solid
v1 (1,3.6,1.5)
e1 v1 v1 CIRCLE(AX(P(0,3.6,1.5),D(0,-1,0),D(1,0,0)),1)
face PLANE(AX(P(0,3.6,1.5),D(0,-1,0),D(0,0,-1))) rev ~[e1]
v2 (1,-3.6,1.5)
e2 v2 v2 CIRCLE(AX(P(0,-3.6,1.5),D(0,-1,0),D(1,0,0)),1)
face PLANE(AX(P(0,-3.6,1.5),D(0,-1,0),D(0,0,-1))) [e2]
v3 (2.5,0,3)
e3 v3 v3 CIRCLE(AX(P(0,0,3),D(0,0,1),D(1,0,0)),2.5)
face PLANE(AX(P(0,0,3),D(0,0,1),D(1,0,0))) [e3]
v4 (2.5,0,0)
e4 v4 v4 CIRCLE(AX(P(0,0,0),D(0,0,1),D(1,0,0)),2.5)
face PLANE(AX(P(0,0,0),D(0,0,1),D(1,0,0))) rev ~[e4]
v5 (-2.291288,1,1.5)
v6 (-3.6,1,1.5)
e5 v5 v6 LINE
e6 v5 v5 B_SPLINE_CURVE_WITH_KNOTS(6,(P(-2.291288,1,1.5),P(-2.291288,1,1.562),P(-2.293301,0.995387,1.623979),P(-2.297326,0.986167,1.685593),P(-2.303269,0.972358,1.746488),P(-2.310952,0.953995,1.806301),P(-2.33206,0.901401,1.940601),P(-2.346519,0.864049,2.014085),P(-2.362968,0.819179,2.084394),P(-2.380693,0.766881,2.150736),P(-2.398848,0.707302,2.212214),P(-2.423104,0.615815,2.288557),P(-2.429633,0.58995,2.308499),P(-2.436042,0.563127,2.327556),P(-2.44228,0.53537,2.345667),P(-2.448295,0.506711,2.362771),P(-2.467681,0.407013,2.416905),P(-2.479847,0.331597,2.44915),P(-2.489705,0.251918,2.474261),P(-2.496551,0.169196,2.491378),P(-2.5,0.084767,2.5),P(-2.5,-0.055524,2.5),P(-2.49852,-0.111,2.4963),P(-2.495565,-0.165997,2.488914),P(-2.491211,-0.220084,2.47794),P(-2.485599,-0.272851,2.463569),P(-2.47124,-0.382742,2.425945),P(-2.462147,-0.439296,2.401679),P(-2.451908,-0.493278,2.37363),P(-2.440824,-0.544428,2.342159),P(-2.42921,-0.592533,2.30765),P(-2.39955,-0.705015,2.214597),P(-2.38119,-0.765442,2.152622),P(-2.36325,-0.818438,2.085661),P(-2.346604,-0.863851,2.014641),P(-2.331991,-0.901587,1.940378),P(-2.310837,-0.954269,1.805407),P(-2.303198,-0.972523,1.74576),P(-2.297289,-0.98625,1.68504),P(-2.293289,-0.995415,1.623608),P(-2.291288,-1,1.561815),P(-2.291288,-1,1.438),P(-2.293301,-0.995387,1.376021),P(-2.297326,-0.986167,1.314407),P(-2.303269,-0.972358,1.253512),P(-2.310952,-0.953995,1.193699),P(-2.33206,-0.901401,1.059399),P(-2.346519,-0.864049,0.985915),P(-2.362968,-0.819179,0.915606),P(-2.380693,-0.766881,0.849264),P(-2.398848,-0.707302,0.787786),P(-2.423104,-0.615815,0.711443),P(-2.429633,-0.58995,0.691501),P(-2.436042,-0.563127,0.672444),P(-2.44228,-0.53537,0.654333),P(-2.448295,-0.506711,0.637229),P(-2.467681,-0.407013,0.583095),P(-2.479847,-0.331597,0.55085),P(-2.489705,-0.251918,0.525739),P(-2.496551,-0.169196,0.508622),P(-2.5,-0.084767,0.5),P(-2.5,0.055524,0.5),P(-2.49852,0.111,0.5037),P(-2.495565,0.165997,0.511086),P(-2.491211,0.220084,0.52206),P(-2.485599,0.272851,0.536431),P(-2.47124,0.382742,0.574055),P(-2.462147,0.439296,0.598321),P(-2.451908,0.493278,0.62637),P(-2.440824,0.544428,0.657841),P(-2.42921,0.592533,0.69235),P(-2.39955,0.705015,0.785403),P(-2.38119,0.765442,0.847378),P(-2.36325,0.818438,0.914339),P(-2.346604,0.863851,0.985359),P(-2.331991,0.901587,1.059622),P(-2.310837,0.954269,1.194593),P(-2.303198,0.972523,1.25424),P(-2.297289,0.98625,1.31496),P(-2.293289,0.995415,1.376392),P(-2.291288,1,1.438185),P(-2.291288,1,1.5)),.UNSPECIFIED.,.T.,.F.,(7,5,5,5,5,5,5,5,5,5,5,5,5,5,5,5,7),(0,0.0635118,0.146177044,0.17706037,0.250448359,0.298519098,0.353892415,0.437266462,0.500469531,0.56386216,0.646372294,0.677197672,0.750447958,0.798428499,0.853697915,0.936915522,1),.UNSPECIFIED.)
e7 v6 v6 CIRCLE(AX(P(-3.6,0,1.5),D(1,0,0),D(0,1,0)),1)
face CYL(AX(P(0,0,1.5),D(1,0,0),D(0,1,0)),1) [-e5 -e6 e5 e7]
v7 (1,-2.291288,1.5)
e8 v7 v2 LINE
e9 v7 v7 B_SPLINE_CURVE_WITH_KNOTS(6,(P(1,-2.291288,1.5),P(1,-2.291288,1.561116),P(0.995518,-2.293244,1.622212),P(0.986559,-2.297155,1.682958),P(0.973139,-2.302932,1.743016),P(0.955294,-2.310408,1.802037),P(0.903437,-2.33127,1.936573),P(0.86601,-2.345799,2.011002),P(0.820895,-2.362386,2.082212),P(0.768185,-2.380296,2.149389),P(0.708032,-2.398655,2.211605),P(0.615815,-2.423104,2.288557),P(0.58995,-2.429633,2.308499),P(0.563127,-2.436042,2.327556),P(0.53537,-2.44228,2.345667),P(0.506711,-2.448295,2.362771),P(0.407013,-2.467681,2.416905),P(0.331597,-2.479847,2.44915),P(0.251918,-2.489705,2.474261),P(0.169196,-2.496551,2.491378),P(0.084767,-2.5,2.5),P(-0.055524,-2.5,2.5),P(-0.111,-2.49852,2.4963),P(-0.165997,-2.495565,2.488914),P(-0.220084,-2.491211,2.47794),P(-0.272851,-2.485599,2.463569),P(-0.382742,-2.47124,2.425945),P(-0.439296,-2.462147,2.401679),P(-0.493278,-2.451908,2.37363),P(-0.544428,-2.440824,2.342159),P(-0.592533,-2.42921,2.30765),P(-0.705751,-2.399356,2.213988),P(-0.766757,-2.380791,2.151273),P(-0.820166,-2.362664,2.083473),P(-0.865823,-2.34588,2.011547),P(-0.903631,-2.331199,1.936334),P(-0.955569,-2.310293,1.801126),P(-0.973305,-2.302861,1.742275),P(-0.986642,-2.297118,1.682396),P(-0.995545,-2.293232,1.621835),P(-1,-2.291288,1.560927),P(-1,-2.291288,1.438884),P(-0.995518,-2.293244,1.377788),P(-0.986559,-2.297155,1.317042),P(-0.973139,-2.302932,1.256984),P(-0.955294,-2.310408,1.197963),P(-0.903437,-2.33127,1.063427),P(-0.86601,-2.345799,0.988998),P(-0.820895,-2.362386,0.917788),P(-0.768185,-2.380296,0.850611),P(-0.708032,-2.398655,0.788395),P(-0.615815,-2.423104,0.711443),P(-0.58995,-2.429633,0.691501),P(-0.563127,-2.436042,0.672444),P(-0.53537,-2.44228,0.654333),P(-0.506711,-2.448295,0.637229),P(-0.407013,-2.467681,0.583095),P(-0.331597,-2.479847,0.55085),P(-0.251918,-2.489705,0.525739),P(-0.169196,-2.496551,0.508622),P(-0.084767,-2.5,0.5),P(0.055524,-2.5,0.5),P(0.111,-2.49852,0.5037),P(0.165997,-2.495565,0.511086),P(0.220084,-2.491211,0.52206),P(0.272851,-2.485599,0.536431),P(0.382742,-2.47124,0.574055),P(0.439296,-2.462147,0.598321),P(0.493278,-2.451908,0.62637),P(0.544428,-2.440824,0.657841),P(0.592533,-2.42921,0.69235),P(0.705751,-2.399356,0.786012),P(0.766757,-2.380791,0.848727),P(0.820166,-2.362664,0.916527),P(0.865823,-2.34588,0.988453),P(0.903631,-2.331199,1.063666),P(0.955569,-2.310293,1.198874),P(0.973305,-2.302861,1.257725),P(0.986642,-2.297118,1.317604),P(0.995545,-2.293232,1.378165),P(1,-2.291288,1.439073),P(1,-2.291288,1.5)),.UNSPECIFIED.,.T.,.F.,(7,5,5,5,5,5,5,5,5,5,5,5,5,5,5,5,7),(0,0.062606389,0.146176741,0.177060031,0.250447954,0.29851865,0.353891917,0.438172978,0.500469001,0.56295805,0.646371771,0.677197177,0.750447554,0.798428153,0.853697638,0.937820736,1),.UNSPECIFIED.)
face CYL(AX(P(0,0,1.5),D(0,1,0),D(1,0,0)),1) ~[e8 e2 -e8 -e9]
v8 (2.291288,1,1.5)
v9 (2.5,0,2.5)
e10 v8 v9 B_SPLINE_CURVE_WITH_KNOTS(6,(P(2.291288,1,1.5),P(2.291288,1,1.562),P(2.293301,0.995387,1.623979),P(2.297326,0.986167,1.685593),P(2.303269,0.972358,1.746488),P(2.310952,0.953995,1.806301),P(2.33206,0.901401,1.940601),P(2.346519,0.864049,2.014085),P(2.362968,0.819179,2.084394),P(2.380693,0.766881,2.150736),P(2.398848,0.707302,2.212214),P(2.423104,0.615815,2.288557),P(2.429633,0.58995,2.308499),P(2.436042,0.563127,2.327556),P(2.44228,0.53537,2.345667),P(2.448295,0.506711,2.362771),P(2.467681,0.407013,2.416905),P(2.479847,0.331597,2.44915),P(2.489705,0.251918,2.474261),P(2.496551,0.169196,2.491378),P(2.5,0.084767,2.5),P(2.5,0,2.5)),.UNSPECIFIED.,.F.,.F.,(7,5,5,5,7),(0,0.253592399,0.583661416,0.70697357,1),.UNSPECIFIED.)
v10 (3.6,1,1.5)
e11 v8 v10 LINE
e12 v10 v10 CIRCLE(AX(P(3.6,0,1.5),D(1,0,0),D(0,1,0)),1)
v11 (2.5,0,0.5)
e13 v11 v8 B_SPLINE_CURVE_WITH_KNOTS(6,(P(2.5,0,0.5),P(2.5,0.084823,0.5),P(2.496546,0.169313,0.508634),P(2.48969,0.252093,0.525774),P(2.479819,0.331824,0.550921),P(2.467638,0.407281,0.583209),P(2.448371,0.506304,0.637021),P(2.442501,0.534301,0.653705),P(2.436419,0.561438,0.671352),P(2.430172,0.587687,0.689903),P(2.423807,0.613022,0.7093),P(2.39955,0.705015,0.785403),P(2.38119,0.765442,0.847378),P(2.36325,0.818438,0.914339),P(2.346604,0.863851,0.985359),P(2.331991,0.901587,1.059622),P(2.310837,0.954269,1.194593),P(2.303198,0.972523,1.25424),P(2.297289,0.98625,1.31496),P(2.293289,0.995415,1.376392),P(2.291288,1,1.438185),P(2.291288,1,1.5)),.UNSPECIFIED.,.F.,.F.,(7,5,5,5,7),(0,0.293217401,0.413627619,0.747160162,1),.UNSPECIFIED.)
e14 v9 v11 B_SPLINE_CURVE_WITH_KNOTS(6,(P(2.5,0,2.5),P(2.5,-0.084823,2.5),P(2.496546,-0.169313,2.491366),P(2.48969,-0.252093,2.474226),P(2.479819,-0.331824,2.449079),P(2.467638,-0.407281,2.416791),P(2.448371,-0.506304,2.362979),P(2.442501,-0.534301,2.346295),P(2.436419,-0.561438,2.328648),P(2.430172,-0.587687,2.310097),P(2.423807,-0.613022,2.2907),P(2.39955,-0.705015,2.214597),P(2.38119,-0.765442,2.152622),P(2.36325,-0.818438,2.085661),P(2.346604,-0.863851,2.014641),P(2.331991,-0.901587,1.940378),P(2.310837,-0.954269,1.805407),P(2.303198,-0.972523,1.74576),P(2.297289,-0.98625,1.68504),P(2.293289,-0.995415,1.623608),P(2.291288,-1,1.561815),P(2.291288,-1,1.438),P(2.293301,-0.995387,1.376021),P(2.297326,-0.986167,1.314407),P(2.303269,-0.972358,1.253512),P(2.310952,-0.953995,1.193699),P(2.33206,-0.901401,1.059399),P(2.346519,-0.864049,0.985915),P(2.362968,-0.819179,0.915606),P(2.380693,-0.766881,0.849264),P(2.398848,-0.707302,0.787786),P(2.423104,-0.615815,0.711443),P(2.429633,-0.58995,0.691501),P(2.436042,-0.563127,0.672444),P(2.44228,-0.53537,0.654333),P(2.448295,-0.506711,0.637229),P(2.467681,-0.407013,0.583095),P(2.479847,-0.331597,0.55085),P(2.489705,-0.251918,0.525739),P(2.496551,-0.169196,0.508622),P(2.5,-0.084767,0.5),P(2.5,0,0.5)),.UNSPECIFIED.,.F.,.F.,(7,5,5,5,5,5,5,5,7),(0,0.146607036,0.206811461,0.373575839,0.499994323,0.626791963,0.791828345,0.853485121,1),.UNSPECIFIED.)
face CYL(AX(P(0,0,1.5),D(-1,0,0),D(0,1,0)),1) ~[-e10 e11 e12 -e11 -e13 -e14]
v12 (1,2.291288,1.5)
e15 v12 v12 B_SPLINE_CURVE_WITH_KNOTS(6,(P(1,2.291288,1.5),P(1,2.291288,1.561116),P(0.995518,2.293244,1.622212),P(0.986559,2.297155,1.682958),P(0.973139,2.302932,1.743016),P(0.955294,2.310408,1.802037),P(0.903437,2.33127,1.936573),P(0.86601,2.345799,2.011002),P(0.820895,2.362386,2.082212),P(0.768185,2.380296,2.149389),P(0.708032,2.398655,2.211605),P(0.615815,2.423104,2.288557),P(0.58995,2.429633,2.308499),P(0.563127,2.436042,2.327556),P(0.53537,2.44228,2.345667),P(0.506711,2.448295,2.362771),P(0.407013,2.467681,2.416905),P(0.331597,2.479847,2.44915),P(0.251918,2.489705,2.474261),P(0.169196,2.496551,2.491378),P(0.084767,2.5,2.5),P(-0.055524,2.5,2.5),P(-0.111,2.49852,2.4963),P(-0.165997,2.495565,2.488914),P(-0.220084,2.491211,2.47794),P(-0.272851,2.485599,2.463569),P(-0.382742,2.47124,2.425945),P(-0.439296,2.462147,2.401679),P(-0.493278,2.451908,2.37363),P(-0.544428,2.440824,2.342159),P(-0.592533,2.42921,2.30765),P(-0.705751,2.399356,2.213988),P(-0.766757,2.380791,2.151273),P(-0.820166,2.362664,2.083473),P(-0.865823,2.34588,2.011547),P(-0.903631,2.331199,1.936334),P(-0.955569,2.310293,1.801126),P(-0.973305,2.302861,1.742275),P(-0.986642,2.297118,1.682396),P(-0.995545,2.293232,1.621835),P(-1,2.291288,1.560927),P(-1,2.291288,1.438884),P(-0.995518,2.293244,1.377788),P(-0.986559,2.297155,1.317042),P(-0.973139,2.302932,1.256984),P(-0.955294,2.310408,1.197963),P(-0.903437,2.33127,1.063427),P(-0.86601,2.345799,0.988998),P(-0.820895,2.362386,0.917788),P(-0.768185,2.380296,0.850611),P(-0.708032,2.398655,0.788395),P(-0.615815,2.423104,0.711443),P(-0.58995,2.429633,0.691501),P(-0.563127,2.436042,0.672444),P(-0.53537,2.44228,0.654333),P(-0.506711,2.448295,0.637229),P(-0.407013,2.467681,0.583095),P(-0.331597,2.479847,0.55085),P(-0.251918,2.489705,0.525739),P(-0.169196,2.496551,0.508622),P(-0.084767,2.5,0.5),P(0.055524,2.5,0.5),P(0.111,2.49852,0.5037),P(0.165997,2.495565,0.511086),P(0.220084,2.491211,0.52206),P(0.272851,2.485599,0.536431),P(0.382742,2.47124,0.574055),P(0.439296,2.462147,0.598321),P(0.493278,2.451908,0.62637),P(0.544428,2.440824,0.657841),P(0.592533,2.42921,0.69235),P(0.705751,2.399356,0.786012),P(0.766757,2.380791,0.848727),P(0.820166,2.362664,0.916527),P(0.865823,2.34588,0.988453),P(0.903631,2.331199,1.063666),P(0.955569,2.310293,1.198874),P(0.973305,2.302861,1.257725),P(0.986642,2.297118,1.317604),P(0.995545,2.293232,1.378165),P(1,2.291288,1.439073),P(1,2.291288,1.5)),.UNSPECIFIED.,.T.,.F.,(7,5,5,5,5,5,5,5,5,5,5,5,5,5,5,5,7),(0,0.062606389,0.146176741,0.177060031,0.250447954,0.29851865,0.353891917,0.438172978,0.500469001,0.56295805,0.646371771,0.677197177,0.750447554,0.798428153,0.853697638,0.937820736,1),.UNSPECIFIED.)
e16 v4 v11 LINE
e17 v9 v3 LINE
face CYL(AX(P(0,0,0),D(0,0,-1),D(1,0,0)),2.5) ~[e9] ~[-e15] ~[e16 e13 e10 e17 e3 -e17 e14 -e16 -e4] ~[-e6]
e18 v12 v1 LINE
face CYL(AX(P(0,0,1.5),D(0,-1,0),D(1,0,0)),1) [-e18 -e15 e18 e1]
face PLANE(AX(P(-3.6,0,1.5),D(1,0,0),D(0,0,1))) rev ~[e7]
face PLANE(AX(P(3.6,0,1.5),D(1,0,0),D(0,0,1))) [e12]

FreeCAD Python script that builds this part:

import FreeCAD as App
import Part
import Sketcher
from FreeCAD import Vector

doc = App.newDocument("Part")
body = doc.addObject("PartDesign::Body", "Body")

# Sketch on XY plane
sketch1 = body.newObject("Sketcher::SketchObject", "Sketch")
sketch1.AttachmentSupport = (doc.getObject("XY_Plane"), [""])
sketch1.MapMode = "FlatFace"
sketch1.addGeometry(Part.Circle(Vector(0, 0, 0), Vector(0, 0, 1), 2.5), False)
sketch1.addConstraint([
    Sketcher.Constraint("Coincident", 0, 3, -1, 1),
    Sketcher.Constraint("Diameter", 0, 5.0),
])
pad1 = body.newObject("PartDesign::Pad", "Pad")
pad1.Profile = sketch1
pad1.Length = 3

# Sketch on YZ plane
sketch2 = body.newObject("Sketcher::SketchObject", "Sketch001")
sketch2.AttachmentSupport = (doc.getObject("YZ_Plane"), [""])
sketch2.MapMode = "FlatFace"
sketch2.addGeometry(Part.Circle(Vector(0, 1.5, 0), Vector(0, 0, 1), 1), False)
sketch2.addConstraint([
    Sketcher.Constraint("PointOnObject", 0, 3, -2),
    Sketcher.Constraint("Diameter", 0, 2.0),
    Sketcher.Constraint("DistanceY", -1, 1, 0, 3, 1.5),
])
pad2 = body.newObject("PartDesign::Pad", "Pad001")
pad2.Profile = sketch2
pad2.Length = 7.2
pad2.Midplane = True

# Sketch on XZ plane
sketch3 = body.newObject("Sketcher::SketchObject", "Sketch002")
sketch3.AttachmentSupport = (doc.getObject("XZ_Plane"), [""])
sketch3.MapMode = "FlatFace"
sketch3.addGeometry(Part.Circle(Vector(0, 1.5, 0), Vector(0, 0, 1), 1), False)
sketch3.addConstraint([
    Sketcher.Constraint("PointOnObject", 0, 3, -2),
    Sketcher.Constraint("Diameter", 0, 2.0),
    Sketcher.Constraint("DistanceY", -1, 1, 0, 3, 1.5),
])
pad3 = body.newObject("PartDesign::Pad", "Pad002")
pad3.Profile = sketch3
pad3.Length = 7.2
pad3.Midplane = True

doc.recompute()
